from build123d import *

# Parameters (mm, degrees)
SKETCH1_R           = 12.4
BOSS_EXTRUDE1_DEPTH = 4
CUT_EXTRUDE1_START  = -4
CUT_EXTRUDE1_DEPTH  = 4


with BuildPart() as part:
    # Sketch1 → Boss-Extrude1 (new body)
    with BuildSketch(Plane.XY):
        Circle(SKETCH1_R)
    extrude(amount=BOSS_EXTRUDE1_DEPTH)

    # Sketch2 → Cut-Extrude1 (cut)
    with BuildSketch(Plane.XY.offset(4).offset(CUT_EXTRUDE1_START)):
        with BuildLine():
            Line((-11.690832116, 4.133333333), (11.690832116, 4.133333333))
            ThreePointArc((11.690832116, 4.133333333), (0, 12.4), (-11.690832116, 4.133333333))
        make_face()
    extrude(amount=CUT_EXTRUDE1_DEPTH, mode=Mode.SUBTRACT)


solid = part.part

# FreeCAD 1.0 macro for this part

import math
import FreeCAD as App
import Part
import Sketcher

doc = App.newDocument("Part")
params = doc.addObject("Spreadsheet::Sheet", "Params")
for row, (alias, value) in enumerate([
    ("sketch1_diameter", "24.8 mm"),
    ("pad1_length", "4 mm"),
    ("sketch2_radius", "12.4 mm"),
    ("pocket1_length", "4 mm"),
], start=1):
    params.set(f"A{row}", alias)
    params.set(f"B{row}", "=" + value)
    params.setAlias(f"B{row}", alias)

body = doc.addObject("PartDesign::Body", "Body")

# Sketch on XY plane
sketch1 = body.newObject("Sketcher::SketchObject", "Sketch")
sketch1.AttachmentSupport = (doc.getObject("XY_Plane"), [""])
sketch1.MapMode = "FlatFace"
sketch1.addGeometry(Part.Circle(App.Vector(0, 0, 0), App.Vector(0, 0, 1), 12.4), False)
sketch1.addConstraint([
    Sketcher.Constraint("Coincident", 0, 3, -1, 1),
    Sketcher.Constraint("Diameter", 0, 24.8),
])
sketch1.setExpression("Constraints[1]", "Params.sketch1_diameter")
pad1 = body.newObject("PartDesign::Pad", "Pad")
pad1.Profile = sketch1
pad1.setExpression("Length", "Params.pad1_length")

# Sketch on XY plane
sketch2 = body.newObject("Sketcher::SketchObject", "Sketch001")
sketch2.AttachmentSupport = (doc.getObject("XY_Plane"), [""])
sketch2.MapMode = "FlatFace"
sketch2.addGeometry([
    Part.LineSegment(App.Vector(-11.690832, 4.133333, 0), App.Vector(11.690832, 4.133333, 0)),
    Part.ArcOfCircle(Part.Circle(App.Vector(0, 0, 0), App.Vector(0, 0, 1), 12.4), math.radians(19.471221), math.radians(160.528779)),
], False)
sketch2.addConstraint([
    Sketcher.Constraint("Coincident", 0, 1, 1, 2),
    Sketcher.Constraint("Coincident", 1, 1, 0, 2),
    Sketcher.Constraint("Horizontal", 0),
    Sketcher.Constraint("Coincident", 1, 3, -1, 1),
    Sketcher.Constraint("Radius", 1, 12.4),
    Sketcher.Constraint("DistanceX", 0, 1, 0, 2, 23.381664),
])
sketch2.setExpression("Constraints[4]", "Params.sketch2_radius")
pocket1 = body.newObject("PartDesign::Pocket", "Pocket")
pocket1.Profile = sketch2
pocket1.setExpression("Length", "Params.pocket1_length")
pocket1.Reversed = True

doc.recompute()
